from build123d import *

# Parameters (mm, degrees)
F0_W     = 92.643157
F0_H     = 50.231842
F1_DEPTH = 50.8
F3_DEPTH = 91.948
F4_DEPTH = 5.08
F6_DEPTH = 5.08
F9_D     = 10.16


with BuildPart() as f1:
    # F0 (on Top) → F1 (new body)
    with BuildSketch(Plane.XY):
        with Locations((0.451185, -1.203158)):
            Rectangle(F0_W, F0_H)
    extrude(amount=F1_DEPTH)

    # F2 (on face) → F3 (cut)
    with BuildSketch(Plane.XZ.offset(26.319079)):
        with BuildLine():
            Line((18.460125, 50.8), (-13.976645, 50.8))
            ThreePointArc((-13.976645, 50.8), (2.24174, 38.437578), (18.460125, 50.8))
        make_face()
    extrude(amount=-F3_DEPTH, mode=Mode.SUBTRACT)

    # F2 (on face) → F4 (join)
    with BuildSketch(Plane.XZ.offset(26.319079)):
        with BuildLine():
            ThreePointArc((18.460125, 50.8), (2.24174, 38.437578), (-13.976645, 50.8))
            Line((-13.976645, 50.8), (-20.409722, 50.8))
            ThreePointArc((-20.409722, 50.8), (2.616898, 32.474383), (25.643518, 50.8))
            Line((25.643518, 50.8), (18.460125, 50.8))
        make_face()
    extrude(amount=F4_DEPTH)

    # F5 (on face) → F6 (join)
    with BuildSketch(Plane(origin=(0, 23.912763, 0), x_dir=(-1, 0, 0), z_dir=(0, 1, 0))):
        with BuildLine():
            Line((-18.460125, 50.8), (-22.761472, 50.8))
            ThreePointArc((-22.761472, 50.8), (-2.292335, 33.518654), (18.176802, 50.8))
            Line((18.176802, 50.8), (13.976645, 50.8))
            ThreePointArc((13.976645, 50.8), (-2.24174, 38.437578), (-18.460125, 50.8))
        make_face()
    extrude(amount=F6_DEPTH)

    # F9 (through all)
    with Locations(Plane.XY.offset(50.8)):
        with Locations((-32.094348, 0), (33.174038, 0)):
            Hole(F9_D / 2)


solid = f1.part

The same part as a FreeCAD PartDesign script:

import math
import FreeCAD as App
import Part
import Sketcher

V = App.Vector
Q = App.Units.Quantity


def add_polygon(sketch, points):
    """Adds a closed chain of lines whose ends are joined by coincident constraints."""
    first, n = sketch.GeometryCount, len(points)
    for a, b in zip(points, points[1:] + points[:1]):
        sketch.addGeometry(Part.LineSegment(App.Vector(*a, 0), App.Vector(*b, 0)), False)
    for i in range(n):
        sketch.addConstraint(Sketcher.Constraint("Coincident", first + i, 2, first + (i + 1) % n, 1))

doc = App.newDocument("Part")
body = doc.addObject("PartDesign::Body", "Body")

# Sketch on XY plane
sketch1 = doc.addObject("Sketcher::SketchObject", "Sketch")
body.addObject(sketch1)
sketch1.AttachmentSupport = (doc.XY_Plane, [""])
sketch1.MapMode = "FlatFace"
add_polygon(sketch1, [(-45.870393, 23.912763), (-45.870393, -26.319079), (46.772764, -26.319079), (46.772764, 23.912763)])  # lines 0-3
sketch1.addConstraint([
    Sketcher.Constraint("Vertical", 0),
    Sketcher.Constraint("Horizontal", 1),
    Sketcher.Constraint("Vertical", 2),
    Sketcher.Constraint("Horizontal", 3),
    Sketcher.Constraint("DistanceX", 1, 1, 1, 2, 92.643157),
    Sketcher.Constraint("DistanceY", 0, 2, 0, 1, 50.231842),
    Sketcher.Constraint("DistanceY", 0, 2, -1, 1, 26.319079),
    Sketcher.Constraint("DistanceX", 0, 2, -1, 1, 45.870393),
])
pad1 = doc.addObject("PartDesign::Pad", "Pad")
body.addObject(pad1)
pad1.Profile = sketch1
pad1.Length = Q("2 in")

# Sketch on XZ plane
sketch2 = doc.addObject("Sketcher::SketchObject", "Sketch001")
body.addObject(sketch2)
sketch2.AttachmentSupport = (doc.XZ_Plane, [""])
sketch2.MapMode = "FlatFace"
sketch2.AttachmentOffset = App.Placement(V(0, 0, 26.319079), App.Rotation())
sketch2.addGeometry([
    Part.LineSegment(V(18.460125, 50.8, 0), V(-13.976645, 50.8, 0)),
    Part.ArcOfCircle(Part.Circle(V(2.24174, 55.25732, 0), V(0, 0, 1), 16.819742), math.radians(-164.632736), math.radians(-15.367264)),
], False)
sketch2.addConstraint([
    Sketcher.Constraint("Coincident", 0, 1, 1, 2),
    Sketcher.Constraint("Coincident", 1, 1, 0, 2),
    Sketcher.Constraint("Horizontal", 0),
    Sketcher.Constraint("DistanceY", -1, 1, 0, 1, Q("2 in")),
    Sketcher.Constraint("Radius", 1, 16.819742),
    Sketcher.Constraint("DistanceX", 0, 2, 0, 1, 32.43677),
    Sketcher.Constraint("DistanceX", -1, 1, 1, 3, 2.24174),
])
pocket1 = doc.addObject("PartDesign::Pocket", "Pocket")
body.addObject(pocket1)
pocket1.Profile = sketch2
pocket1.Length = Q("3.62 in")

# Sketch on XZ plane
sketch3 = doc.addObject("Sketcher::SketchObject", "Sketch002")
body.addObject(sketch3)
sketch3.AttachmentSupport = (doc.XZ_Plane, [""])
sketch3.MapMode = "FlatFace"
sketch3.AttachmentOffset = App.Placement(V(0, 0, 26.319079), App.Rotation())
sketch3.addGeometry([
    Part.ArcOfCircle(Part.Circle(V(2.24174, 55.25732, 0), V(0, 0, 1), 16.819742), math.radians(-164.632736), math.radians(-15.367264)),
    Part.LineSegment(V(-13.976645, 50.8, 0), V(-20.409722, 50.8, 0)),
    Part.ArcOfCircle(Part.Circle(V(2.616898, 56.103968, 0), V(0, 0, 1), 23.629585), math.radians(-167.028695), math.radians(-12.971305)),
    Part.LineSegment(V(25.643518, 50.8, 0), V(18.460125, 50.8, 0)),
], False)
sketch3.addConstraint([
    Sketcher.Constraint("Coincident", 0, 1, 1, 1),
    Sketcher.Constraint("Coincident", 1, 2, 2, 1),
    Sketcher.Constraint("Coincident", 2, 2, 3, 1),
    Sketcher.Constraint("Coincident", 3, 2, 0, 2),
    Sketcher.Constraint("Horizontal", 1),
    Sketcher.Constraint("Horizontal", 3),
    Sketcher.Constraint("Horizontal", 1, 2, 2, 2),
    Sketcher.Constraint("DistanceY", -1, 1, 0, 1, Q("2 in")),
    Sketcher.Constraint("Radius", 0, 16.819742),
    Sketcher.Constraint("Radius", 2, 23.629585),
    Sketcher.Constraint("DistanceX", -1, 1, 2, 3, 2.616898),
    Sketcher.Constraint("DistanceX", 1, 2, 1, 1, 6.433077),
    Sketcher.Constraint("DistanceX", 3, 2, 3, 1, 7.183393),
    Sketcher.Constraint("DistanceY", -1, 1, 0, 3, 55.25732),
])
pad2 = doc.addObject("PartDesign::Pad", "Pad001")
body.addObject(pad2)
pad2.Profile = sketch3
pad2.Length = Q("0.2 in")

# Sketch on XZ plane
sketch4 = doc.addObject("Sketcher::SketchObject", "Sketch003")
body.addObject(sketch4)
sketch4.AttachmentSupport = (doc.XZ_Plane, [""])
sketch4.MapMode = "FlatFace"
sketch4.AttachmentOffset = App.Placement(V(0, 0, -23.912763), App.Rotation())
sketch4.addGeometry([
    Part.LineSegment(V(18.460125, 50.8, 0), V(22.761472, 50.8, 0)),
    Part.ArcOfCircle(Part.Circle(V(2.292335, 54.281808, 0), V(0, 0, 1), 20.763154), math.radians(-170.346366), math.radians(-9.653634)),
    Part.LineSegment(V(-18.176802, 50.8, 0), V(-13.976645, 50.8, 0)),
    Part.ArcOfCircle(Part.Circle(V(2.24174, 55.25732, 0), V(0, 0, 1), 16.819742), math.radians(-164.632736), math.radians(-15.367264)),
], False)
sketch4.addConstraint([
    Sketcher.Constraint("Coincident", 0, 2, 1, 2),
    Sketcher.Constraint("Coincident", 1, 1, 2, 1),
    Sketcher.Constraint("Coincident", 2, 2, 3, 1),
    Sketcher.Constraint("Coincident", 3, 2, 0, 1),
    Sketcher.Constraint("Horizontal", 0),
    Sketcher.Constraint("Horizontal", 2),
    Sketcher.Constraint("Horizontal", 0, 2, 1, 1),
    Sketcher.Constraint("DistanceY", -1, 1, 0, 2, Q("2 in")),
    Sketcher.Constraint("Radius", 3, 16.819742),
    Sketcher.Constraint("Radius", 1, 20.763154),
    Sketcher.Constraint("DistanceX", 1, 1, -1, 1, 18.176802),
    Sketcher.Constraint("DistanceX", 0, 1, 0, 2, 4.301347),
    Sketcher.Constraint("DistanceX", 2, 1, 2, 2, 4.200157),
    Sketcher.Constraint("DistanceX", -1, 1, 3, 3, 2.24174),
])
pad3 = doc.addObject("PartDesign::Pad", "Pad002")
body.addObject(pad3)
pad3.Profile = sketch4
pad3.Length = Q("0.2 in")
pad3.Reversed = True

# Sketch on XY plane
sketch5 = doc.addObject("Sketcher::SketchObject", "Sketch004")
body.addObject(sketch5)
sketch5.AttachmentSupport = (doc.XY_Plane, [""])
sketch5.MapMode = "FlatFace"
sketch5.AttachmentOffset = App.Placement(V(0, 0, 2 * 25.4), App.Rotation())
sketch5.addGeometry([
    Part.Circle(V(-32.094348, 0, 0), V(0, 0, 1), 5.08),
    Part.Circle(V(33.174038, 0, 0), V(0, 0, 1), 5.08),
], False)
sketch5.addConstraint([
    Sketcher.Constraint("Equal", 0, 1),
    Sketcher.Constraint("PointOnObject", 0, 3, -1),
    Sketcher.Constraint("PointOnObject", 1, 3, -1),
    Sketcher.Constraint("Diameter", 0, Q("0.4 in")),
    Sketcher.Constraint("DistanceX", -1, 1, 1, 3, 33.174038),
    Sketcher.Constraint("DistanceX", 0, 3, -1, 1, 32.094348),
])
doc.recompute()
hole = doc.addObject("PartDesign::Hole", "Hole")
body.addObject(hole)
hole.Profile = sketch5
hole.ThreadType = "None"
hole.Diameter = Q("0.4 in")
hole.DepthType = "ThroughAll"

doc.recompute()
